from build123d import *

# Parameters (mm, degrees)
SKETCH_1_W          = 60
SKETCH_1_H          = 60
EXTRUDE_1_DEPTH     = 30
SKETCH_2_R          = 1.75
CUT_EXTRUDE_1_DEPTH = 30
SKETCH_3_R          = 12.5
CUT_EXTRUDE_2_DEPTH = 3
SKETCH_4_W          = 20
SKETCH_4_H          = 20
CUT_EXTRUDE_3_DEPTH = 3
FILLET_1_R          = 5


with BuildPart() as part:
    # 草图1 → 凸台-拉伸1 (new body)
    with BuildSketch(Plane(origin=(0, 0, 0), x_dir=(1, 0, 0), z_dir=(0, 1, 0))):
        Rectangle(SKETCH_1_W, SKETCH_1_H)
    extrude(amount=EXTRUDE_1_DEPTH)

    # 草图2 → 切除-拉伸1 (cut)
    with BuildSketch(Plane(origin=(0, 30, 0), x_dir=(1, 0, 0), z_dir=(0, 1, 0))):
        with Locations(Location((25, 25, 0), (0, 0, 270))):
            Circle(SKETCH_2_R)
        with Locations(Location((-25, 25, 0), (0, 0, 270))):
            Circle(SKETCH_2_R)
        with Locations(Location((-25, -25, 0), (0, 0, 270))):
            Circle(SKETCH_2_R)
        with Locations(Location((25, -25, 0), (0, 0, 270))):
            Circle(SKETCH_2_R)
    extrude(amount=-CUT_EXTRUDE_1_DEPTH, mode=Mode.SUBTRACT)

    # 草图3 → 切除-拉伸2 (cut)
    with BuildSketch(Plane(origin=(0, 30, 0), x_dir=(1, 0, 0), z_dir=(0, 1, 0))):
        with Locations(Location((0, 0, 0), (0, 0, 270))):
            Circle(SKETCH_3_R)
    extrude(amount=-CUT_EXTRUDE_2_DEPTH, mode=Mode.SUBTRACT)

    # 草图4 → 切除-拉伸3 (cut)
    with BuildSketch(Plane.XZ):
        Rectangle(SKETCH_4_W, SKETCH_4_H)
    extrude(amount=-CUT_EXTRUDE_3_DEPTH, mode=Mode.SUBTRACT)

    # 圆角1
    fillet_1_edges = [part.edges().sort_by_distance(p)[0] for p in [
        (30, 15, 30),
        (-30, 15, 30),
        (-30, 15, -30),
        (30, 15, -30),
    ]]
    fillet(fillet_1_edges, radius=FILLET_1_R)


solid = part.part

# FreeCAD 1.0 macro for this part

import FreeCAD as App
import Part
import Sketcher
from FreeCAD import Vector
Q = App.Units.Quantity


def edges_at(feature, points):
    """Names of the edges that pass closest to the given points."""
    edges = feature.Shape.Edges
    near = lambda p: min(range(len(edges)), key=lambda i: edges[i].distToShape(Part.Vertex(*p))[0])
    return sorted({f"Edge{near(p) + 1}" for p in points})

doc = App.newDocument("Part")
body = doc.addObject("PartDesign::Body", "Body")

# Sketch on XZ plane
sketch1 = body.newObject("Sketcher::SketchObject", "Sketch")
sketch1.AttachmentSupport = (doc.getObject("XZ_Plane"), [""])
sketch1.MapMode = "FlatFace"
sketch1.addGeometry(Part.LineSegment(Vector(-30, -30, 0), Vector(-30, 30, 0)), False)
sketch1.addGeometry(Part.LineSegment(Vector(-30, 30, 0), Vector(30, 30, 0)), False)
sketch1.addGeometry(Part.LineSegment(Vector(30, 30, 0), Vector(30, -30, 0)), False)
sketch1.addGeometry(Part.LineSegment(Vector(30, -30, 0), Vector(-30, -30, 0)), False)
sketch1.addConstraint(Sketcher.Constraint("Coincident", 0, 2, 1, 1))
sketch1.addConstraint(Sketcher.Constraint("Coincident", 1, 2, 2, 1))
sketch1.addConstraint(Sketcher.Constraint("Coincident", 2, 2, 3, 1))
sketch1.addConstraint(Sketcher.Constraint("Coincident", 3, 2, 0, 1))
sketch1.addConstraint(Sketcher.Constraint("Vertical", 0))
sketch1.addConstraint(Sketcher.Constraint("Horizontal", 1))
sketch1.addConstraint(Sketcher.Constraint("Vertical", 2))
sketch1.addConstraint(Sketcher.Constraint("Horizontal", 3))
sketch1.addConstraint(Sketcher.Constraint("Symmetric", 0, 2, 2, 2, -1, 1))
sketch1.addConstraint(Sketcher.Constraint("Equal", 3, 0))
sketch1.addConstraint(Sketcher.Constraint("DistanceX", 1, 1, 1, 2, Q("60 mm")))
pad1 = body.newObject("PartDesign::Pad", "Pad")
pad1.Profile = sketch1
pad1.Length = 30
pad1.Reversed = True

# Sketch on XZ plane
sketch2 = body.newObject("Sketcher::SketchObject", "Sketch001")
sketch2.AttachmentSupport = (doc.getObject("XZ_Plane"), [""])
sketch2.MapMode = "FlatFace"
sketch2.AttachmentOffset = App.Placement(Vector(0, 0, -30), App.Rotation())
sketch2.addGeometry(Part.Circle(Vector(25, -25, 0), Vector(0, 0, 1), 1.75), False)
sketch2.addGeometry(Part.Circle(Vector(-25, -25, 0), Vector(0, 0, 1), 1.75), False)
sketch2.addGeometry(Part.Circle(Vector(-25, 25, 0), Vector(0, 0, 1), 1.75), False)
sketch2.addGeometry(Part.Circle(Vector(25, 25, 0), Vector(0, 0, 1), 1.75), False)
sketch2.addConstraint(Sketcher.Constraint("Equal", 0, 1))
sketch2.addConstraint(Sketcher.Constraint("Equal", 1, 2))
sketch2.addConstraint(Sketcher.Constraint("Equal", 2, 3))
sketch2.addConstraint(Sketcher.Constraint("Symmetric", 0, 3, 2, 3, -1, 1))
sketch2.addConstraint(Sketcher.Constraint("Symmetric", 1, 3, 3, 3, -1, 1))
sketch2.addConstraint(Sketcher.Constraint("Symmetric", 0, 3, 1, 3, -2))
sketch2.addConstraint(Sketcher.Constraint("Diameter", 0, Q("3.5 mm")))
sketch2.addConstraint(Sketcher.Constraint("DistanceX", -1, 1, 0, 3, Q("25 mm")))
sketch2.addConstraint(Sketcher.Constraint("DistanceY", 0, 3, -1, 1, Q("25 mm")))
pocket1 = body.newObject("PartDesign::Pocket", "Pocket")
pocket1.Profile = sketch2
pocket1.Length = 30
pocket1.Reversed = True

# Sketch on XZ plane
sketch3 = body.newObject("Sketcher::SketchObject", "Sketch002")
sketch3.AttachmentSupport = (doc.getObject("XZ_Plane"), [""])
sketch3.MapMode = "FlatFace"
sketch3.AttachmentOffset = App.Placement(Vector(0, 0, -30), App.Rotation())
sketch3.addGeometry(Part.Circle(Vector(0, 0, 0), Vector(0, 0, 1), 12.5), False)
sketch3.addConstraint(Sketcher.Constraint("Coincident", 0, 3, -1, 1))
sketch3.addConstraint(Sketcher.Constraint("Diameter", 0, Q("25 mm")))
pocket2 = body.newObject("PartDesign::Pocket", "Pocket001")
pocket2.Profile = sketch3
pocket2.Length = 3
pocket2.Reversed = True

# Sketch on XZ plane
sketch4 = body.newObject("Sketcher::SketchObject", "Sketch003")
sketch4.AttachmentSupport = (doc.getObject("XZ_Plane"), [""])
sketch4.MapMode = "FlatFace"
sketch4.addGeometry(Part.LineSegment(Vector(-10, 10, 0), Vector(-10, -10, 0)), False)
sketch4.addGeometry(Part.LineSegment(Vector(-10, -10, 0), Vector(10, -10, 0)), False)
sketch4.addGeometry(Part.LineSegment(Vector(10, -10, 0), Vector(10, 10, 0)), False)
sketch4.addGeometry(Part.LineSegment(Vector(10, 10, 0), Vector(-10, 10, 0)), False)
sketch4.addConstraint(Sketcher.Constraint("Coincident", 0, 2, 1, 1))
sketch4.addConstraint(Sketcher.Constraint("Coincident", 1, 2, 2, 1))
sketch4.addConstraint(Sketcher.Constraint("Coincident", 2, 2, 3, 1))
sketch4.addConstraint(Sketcher.Constraint("Coincident", 3, 2, 0, 1))
sketch4.addConstraint(Sketcher.Constraint("Vertical", 0))
sketch4.addConstraint(Sketcher.Constraint("Horizontal", 1))
sketch4.addConstraint(Sketcher.Constraint("Vertical", 2))
sketch4.addConstraint(Sketcher.Constraint("Horizontal", 3))
sketch4.addConstraint(Sketcher.Constraint("Symmetric", 0, 2, 2, 2, -1, 1))
sketch4.addConstraint(Sketcher.Constraint("Equal", 3, 0))
sketch4.addConstraint(Sketcher.Constraint("DistanceX", 1, 1, 1, 2, Q("20 mm")))
pocket3 = body.newObject("PartDesign::Pocket", "Pocket002")
pocket3.Profile = sketch4
pocket3.Length = 3
doc.recompute()

fillet = body.newObject("PartDesign::Fillet", "Fillet")
fillet.Base = (pocket3, edges_at(pocket3, [
    (30, 15, 30),
    (-30, 15, 30),
    (-30, 15, -30),
    (30, 15, -30),
]))
fillet.Radius = 5

doc.recompute()
